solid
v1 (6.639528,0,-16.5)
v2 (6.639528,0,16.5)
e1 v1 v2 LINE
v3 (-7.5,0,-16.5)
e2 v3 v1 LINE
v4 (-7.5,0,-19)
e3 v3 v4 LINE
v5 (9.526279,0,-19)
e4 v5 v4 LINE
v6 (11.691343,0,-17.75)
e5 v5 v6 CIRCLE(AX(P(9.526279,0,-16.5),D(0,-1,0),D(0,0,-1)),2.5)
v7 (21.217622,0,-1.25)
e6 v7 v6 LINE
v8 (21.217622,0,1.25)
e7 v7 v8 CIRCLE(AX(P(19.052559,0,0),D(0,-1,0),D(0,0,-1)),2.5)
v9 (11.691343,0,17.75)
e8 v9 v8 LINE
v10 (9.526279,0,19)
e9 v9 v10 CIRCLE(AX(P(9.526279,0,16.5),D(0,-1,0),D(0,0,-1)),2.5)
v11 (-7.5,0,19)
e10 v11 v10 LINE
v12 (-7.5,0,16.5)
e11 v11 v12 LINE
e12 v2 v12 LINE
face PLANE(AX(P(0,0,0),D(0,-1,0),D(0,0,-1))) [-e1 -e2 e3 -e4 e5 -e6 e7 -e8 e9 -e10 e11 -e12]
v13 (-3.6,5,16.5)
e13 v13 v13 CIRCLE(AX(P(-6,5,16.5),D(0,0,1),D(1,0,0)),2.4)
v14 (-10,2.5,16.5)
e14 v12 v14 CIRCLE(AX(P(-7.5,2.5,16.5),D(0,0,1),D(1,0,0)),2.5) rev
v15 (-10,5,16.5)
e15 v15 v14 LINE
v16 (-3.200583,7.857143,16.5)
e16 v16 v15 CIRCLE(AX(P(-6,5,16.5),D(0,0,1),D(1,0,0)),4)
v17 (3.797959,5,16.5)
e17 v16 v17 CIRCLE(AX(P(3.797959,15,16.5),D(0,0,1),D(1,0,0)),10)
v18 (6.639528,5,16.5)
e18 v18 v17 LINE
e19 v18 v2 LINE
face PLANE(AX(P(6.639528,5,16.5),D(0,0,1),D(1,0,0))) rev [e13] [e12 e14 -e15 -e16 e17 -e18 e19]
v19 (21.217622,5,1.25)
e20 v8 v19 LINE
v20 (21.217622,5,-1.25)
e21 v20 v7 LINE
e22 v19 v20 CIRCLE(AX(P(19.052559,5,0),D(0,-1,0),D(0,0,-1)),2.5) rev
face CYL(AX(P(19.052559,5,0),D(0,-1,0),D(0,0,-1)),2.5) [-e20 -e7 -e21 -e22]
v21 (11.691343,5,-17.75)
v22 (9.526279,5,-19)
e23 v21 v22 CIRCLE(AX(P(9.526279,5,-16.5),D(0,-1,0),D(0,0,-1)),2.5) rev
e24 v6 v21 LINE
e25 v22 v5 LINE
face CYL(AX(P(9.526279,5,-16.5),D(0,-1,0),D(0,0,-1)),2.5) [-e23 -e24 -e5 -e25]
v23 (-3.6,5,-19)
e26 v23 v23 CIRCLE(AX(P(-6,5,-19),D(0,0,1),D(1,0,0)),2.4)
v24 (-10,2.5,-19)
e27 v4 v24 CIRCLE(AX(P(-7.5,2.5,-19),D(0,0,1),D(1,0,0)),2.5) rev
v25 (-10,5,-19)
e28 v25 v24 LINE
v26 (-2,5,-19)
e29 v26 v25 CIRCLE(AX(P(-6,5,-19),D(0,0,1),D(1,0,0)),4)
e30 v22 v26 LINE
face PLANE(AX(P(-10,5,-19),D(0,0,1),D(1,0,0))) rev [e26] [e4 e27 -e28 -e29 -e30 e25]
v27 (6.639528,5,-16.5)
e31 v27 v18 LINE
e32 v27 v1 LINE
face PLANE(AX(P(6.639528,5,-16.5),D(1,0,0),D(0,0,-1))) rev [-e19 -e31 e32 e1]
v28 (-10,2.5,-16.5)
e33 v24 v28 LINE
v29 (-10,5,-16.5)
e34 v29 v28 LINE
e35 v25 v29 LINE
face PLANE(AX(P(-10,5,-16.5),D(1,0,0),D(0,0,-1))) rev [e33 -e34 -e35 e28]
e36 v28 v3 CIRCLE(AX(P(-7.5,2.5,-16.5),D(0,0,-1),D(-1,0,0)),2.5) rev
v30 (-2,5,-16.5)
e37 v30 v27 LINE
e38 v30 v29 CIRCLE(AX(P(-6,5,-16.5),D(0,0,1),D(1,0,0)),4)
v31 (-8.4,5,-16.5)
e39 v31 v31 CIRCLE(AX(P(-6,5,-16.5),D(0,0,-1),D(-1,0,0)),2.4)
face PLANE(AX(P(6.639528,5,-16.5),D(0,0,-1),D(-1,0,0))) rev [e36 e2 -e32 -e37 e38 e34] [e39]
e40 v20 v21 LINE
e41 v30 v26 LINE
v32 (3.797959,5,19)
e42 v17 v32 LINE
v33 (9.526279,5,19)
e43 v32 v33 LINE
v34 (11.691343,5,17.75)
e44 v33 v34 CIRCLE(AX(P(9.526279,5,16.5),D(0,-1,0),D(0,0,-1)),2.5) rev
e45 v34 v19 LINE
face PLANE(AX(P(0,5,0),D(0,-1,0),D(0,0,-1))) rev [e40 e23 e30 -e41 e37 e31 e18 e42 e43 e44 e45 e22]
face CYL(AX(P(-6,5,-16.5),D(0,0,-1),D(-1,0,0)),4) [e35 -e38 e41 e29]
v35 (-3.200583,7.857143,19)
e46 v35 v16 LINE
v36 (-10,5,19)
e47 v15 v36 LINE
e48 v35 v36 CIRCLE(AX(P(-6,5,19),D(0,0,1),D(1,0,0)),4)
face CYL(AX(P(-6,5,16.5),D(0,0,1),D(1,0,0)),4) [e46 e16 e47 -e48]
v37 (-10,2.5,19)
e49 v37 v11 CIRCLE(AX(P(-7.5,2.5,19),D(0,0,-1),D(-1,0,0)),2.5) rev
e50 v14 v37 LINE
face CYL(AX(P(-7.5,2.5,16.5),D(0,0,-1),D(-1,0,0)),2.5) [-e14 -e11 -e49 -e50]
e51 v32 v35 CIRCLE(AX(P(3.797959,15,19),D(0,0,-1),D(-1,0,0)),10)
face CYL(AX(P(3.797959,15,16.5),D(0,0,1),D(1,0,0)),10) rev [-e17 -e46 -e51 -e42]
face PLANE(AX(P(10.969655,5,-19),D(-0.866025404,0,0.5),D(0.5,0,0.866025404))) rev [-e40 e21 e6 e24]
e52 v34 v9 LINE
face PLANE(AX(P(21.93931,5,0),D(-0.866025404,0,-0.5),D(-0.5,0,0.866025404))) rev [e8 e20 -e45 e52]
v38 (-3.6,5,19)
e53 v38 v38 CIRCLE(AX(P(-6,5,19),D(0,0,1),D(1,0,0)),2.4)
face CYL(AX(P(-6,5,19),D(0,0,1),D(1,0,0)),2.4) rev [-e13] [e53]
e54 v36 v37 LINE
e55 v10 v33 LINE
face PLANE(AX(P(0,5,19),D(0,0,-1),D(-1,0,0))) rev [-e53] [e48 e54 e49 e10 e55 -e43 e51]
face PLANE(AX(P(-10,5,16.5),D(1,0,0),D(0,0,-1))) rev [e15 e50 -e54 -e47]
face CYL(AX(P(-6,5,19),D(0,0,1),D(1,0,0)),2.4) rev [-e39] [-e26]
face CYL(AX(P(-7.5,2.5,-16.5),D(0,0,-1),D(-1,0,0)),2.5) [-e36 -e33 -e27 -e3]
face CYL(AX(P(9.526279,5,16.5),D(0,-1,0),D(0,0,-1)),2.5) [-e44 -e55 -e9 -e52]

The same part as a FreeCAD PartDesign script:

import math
import FreeCAD as App
import Part
import Sketcher

V = App.Vector
Q = App.Units.Quantity


def edges_at(feature, points):
    """Names of the edges that pass closest to the given points."""
    edges = feature.Shape.Edges
    near = lambda p: min(range(len(edges)), key=lambda i: edges[i].distToShape(Part.Vertex(*p))[0])
    return sorted({f"Edge{near(p) + 1}" for p in points})

doc = App.newDocument("Part")
body = doc.addObject("PartDesign::Body", "Body")

# Sketch on XZ plane
sketch1 = body.newObject("Sketcher::SketchObject", "Sketch")
sketch1.AttachmentSupport = (doc.getObject("XZ_Plane"), [""])
sketch1.MapMode = "FlatFace"
sketch1.addGeometry([
    Part.LineSegment(V(21.9, 0, 0), V(11, -19, 0)),  # 0
    Part.LineSegment(V(11, -19, 0), V(-10, -19, 0)),  # 1
    Part.LineSegment(V(-10, -19, 0), V(-10, -16.5, 0)),  # 2
    Part.LineSegment(V(-10, -16.5, 0), V(6.6, -16.5, 0)),  # 3
    Part.LineSegment(V(6.6, -16.5, 0), V(6.6, 16.5, 0)),  # 4
    Part.LineSegment(V(6.6, 16.5, 0), V(-10, 16.5, 0)),  # 5
    Part.LineSegment(V(-10, 16.5, 0), V(-10, 19, 0)),  # 6
    Part.LineSegment(V(-10, 19, 0), V(11, 19, 0)),  # 7
    Part.LineSegment(V(11, 19, 0), V(21.9, 0, 0)),  # 8
], False)
sketch1.addConstraint([
    Sketcher.Constraint("Coincident", 0, 2, 1, 1),
    Sketcher.Constraint("Coincident", 1, 2, 2, 1),
    Sketcher.Constraint("Coincident", 2, 2, 3, 1),
    Sketcher.Constraint("Coincident", 3, 2, 4, 1),
    Sketcher.Constraint("Coincident", 4, 2, 5, 1),
    Sketcher.Constraint("Coincident", 5, 2, 6, 1),
    Sketcher.Constraint("Coincident", 6, 2, 7, 1),
    Sketcher.Constraint("Coincident", 7, 2, 8, 1),
    Sketcher.Constraint("Coincident", 8, 2, 0, 1),
    Sketcher.Constraint("Horizontal", 1),
    Sketcher.Constraint("Vertical", 2),
    Sketcher.Constraint("Horizontal", 3),
    Sketcher.Constraint("Vertical", 4),
    Sketcher.Constraint("Horizontal", 5),
    Sketcher.Constraint("Vertical", 6),
    Sketcher.Constraint("Horizontal", 7),
    Sketcher.Constraint("Symmetric", 2, 2, 5, 2, -1),
    Sketcher.Constraint("Symmetric", 0, 2, 7, 2, -1),
    Sketcher.Constraint("PointOnObject", 8, 2, -1),
    Sketcher.Constraint("DistanceY", 4, 1, 4, 2, Q("33 mm")),
    Sketcher.Constraint("Angle", 0, Q("-120 deg")),
    Sketcher.Constraint("DistanceY", 2, 1, 2, 2, Q("2.5 mm")),
    Sketcher.Constraint("DistanceX", 1, 2, -1, 1, Q("10 mm")),
    Sketcher.Constraint("DistanceX", 3, 1, 3, 2, Q("16.639528 mm")),
    Sketcher.Constraint("DistanceX", 1, 2, 1, 1, Q("20.969655 mm")),
])
pad1 = body.newObject("PartDesign::Pad", "Pad")
pad1.Profile = sketch1
pad1.Length = 5
pad1.Reversed = True

# Sketch on XY plane
sketch2 = body.newObject("Sketcher::SketchObject", "Sketch001")
sketch2.AttachmentSupport = (doc.getObject("XY_Plane"), [""])
sketch2.MapMode = "FlatFace"
sketch2.AttachmentOffset = App.Placement(V(0, 0, 19), App.Rotation())
sketch2.addGeometry([
    Part.LineSegment(V(-10, 5, 0), V(-2, 5, 0)),
    Part.ArcOfCircle(Part.Circle(V(-6, 5, 0), V(0, 0, 1), 4), math.radians(0), math.radians(180)),
], False)
sketch2.addConstraint([
    Sketcher.Constraint("Coincident", 0, 1, 1, 2),
    Sketcher.Constraint("Coincident", 1, 1, 0, 2),
    Sketcher.Constraint("Horizontal", 0),
    Sketcher.Constraint("Horizontal", 1, 3, 0, 1),
    Sketcher.Constraint("Radius", 1, Q("4 mm")),
    Sketcher.Constraint("DistanceX", 1, 3, -1, 1, Q("6 mm")),
    Sketcher.Constraint("DistanceY", -1, 1, 1, 3, Q("5 mm")),
])
pad2 = body.newObject("PartDesign::Pad", "Pad001")
pad2.Profile = sketch2
pad2.Length = 2.5
pad2.Reversed = True
doc.recompute()

mirrored = body.newObject("PartDesign::Mirrored", "Mirrored")
mirrored.Originals = [pad2]
mirrored.MirrorPlane = (doc.getObject("XY_Plane"), [""])
body.Tip = mirrored

# Sketch on XY plane
sketch3 = body.newObject("Sketcher::SketchObject", "Sketch002")
sketch3.AttachmentSupport = (doc.getObject("XY_Plane"), [""])
sketch3.MapMode = "FlatFace"
sketch3.AttachmentOffset = App.Placement(V(0, 0, 19), App.Rotation())
sketch3.addGeometry(Part.Circle(V(-6, 5, 0), V(0, 0, 1), 2.4), False)
sketch3.addConstraint([
    Sketcher.Constraint("Diameter", 0, Q("4.8 mm")),
    Sketcher.Constraint("DistanceX", 0, 3, -1, 1, Q("6 mm")),
    Sketcher.Constraint("DistanceY", -1, 1, 0, 3, Q("5 mm")),
])
doc.recompute()
hole = body.newObject("PartDesign::Hole", "Hole")
hole.Profile = sketch3
hole.ThreadType = "None"
hole.Diameter = 4.8
hole.DepthType = "ThroughAll"
doc.recompute()

fillet = body.newObject("PartDesign::Fillet", "Fillet")
fillet.Base = (hole, edges_at(hole, [(-2, 5, 17.75)]))
fillet.Radius = 10
doc.recompute()

fillet2 = body.newObject("PartDesign::Fillet", "Fillet001")
fillet2.Base = (fillet, edges_at(fillet, [
    (-10, 0, 17.75),
    (-10, 0, -17.75),
    (10.97, 2.5, -19),
    (21.939, 2.5, 0),
    (10.97, 2.5, 19),
]))
fillet2.Radius = 2.5

doc.recompute()
